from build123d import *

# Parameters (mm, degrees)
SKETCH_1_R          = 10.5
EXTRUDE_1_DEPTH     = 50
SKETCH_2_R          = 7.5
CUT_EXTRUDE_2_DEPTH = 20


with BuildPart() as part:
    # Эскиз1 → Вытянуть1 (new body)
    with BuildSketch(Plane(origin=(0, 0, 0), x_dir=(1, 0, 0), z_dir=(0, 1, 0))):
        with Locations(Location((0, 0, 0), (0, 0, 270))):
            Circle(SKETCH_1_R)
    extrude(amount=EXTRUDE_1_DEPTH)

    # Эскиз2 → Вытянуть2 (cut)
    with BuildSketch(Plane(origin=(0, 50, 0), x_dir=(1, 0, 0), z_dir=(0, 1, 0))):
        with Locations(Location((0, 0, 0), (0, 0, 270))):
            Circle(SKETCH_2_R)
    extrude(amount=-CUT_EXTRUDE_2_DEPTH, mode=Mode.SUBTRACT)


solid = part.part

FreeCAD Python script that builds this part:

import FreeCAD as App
import Part
import Sketcher

doc = App.newDocument("Part")
body = doc.addObject("PartDesign::Body", "Body")

# Sketch on XZ plane
sketch1 = body.newObject("Sketcher::SketchObject", "Sketch")
sketch1.AttachmentSupport = (doc.getObject("XZ_Plane"), [""])
sketch1.MapMode = "FlatFace"
sketch1.addGeometry(Part.Circle(App.Vector(0, 0, 0), App.Vector(0, 0, 1), 10.5), False)
sketch1.addConstraint(Sketcher.Constraint("Coincident", 0, 3, -1, 1))
sketch1.addConstraint(Sketcher.Constraint("Diameter", 0, 21.0))
pad1 = body.newObject("PartDesign::Pad", "Pad")
pad1.Profile = sketch1
pad1.Length = 50
pad1.Reversed = True

# Sketch on XZ plane
sketch2 = body.newObject("Sketcher::SketchObject", "Sketch001")
sketch2.AttachmentSupport = (doc.getObject("XZ_Plane"), [""])
sketch2.MapMode = "FlatFace"
sketch2.AttachmentOffset = App.Placement(App.Vector(0, 0, -50), App.Rotation())
sketch2.addGeometry(Part.Circle(App.Vector(0, 0, 0), App.Vector(0, 0, 1), 7.5), False)
sketch2.addConstraint(Sketcher.Constraint("Coincident", 0, 3, -1, 1))
sketch2.addConstraint(Sketcher.Constraint("Diameter", 0, 15.0))
pocket1 = body.newObject("PartDesign::Pocket", "Pocket")
pocket1.Profile = sketch2
pocket1.Length = 20
pocket1.Reversed = True

doc.recompute()
